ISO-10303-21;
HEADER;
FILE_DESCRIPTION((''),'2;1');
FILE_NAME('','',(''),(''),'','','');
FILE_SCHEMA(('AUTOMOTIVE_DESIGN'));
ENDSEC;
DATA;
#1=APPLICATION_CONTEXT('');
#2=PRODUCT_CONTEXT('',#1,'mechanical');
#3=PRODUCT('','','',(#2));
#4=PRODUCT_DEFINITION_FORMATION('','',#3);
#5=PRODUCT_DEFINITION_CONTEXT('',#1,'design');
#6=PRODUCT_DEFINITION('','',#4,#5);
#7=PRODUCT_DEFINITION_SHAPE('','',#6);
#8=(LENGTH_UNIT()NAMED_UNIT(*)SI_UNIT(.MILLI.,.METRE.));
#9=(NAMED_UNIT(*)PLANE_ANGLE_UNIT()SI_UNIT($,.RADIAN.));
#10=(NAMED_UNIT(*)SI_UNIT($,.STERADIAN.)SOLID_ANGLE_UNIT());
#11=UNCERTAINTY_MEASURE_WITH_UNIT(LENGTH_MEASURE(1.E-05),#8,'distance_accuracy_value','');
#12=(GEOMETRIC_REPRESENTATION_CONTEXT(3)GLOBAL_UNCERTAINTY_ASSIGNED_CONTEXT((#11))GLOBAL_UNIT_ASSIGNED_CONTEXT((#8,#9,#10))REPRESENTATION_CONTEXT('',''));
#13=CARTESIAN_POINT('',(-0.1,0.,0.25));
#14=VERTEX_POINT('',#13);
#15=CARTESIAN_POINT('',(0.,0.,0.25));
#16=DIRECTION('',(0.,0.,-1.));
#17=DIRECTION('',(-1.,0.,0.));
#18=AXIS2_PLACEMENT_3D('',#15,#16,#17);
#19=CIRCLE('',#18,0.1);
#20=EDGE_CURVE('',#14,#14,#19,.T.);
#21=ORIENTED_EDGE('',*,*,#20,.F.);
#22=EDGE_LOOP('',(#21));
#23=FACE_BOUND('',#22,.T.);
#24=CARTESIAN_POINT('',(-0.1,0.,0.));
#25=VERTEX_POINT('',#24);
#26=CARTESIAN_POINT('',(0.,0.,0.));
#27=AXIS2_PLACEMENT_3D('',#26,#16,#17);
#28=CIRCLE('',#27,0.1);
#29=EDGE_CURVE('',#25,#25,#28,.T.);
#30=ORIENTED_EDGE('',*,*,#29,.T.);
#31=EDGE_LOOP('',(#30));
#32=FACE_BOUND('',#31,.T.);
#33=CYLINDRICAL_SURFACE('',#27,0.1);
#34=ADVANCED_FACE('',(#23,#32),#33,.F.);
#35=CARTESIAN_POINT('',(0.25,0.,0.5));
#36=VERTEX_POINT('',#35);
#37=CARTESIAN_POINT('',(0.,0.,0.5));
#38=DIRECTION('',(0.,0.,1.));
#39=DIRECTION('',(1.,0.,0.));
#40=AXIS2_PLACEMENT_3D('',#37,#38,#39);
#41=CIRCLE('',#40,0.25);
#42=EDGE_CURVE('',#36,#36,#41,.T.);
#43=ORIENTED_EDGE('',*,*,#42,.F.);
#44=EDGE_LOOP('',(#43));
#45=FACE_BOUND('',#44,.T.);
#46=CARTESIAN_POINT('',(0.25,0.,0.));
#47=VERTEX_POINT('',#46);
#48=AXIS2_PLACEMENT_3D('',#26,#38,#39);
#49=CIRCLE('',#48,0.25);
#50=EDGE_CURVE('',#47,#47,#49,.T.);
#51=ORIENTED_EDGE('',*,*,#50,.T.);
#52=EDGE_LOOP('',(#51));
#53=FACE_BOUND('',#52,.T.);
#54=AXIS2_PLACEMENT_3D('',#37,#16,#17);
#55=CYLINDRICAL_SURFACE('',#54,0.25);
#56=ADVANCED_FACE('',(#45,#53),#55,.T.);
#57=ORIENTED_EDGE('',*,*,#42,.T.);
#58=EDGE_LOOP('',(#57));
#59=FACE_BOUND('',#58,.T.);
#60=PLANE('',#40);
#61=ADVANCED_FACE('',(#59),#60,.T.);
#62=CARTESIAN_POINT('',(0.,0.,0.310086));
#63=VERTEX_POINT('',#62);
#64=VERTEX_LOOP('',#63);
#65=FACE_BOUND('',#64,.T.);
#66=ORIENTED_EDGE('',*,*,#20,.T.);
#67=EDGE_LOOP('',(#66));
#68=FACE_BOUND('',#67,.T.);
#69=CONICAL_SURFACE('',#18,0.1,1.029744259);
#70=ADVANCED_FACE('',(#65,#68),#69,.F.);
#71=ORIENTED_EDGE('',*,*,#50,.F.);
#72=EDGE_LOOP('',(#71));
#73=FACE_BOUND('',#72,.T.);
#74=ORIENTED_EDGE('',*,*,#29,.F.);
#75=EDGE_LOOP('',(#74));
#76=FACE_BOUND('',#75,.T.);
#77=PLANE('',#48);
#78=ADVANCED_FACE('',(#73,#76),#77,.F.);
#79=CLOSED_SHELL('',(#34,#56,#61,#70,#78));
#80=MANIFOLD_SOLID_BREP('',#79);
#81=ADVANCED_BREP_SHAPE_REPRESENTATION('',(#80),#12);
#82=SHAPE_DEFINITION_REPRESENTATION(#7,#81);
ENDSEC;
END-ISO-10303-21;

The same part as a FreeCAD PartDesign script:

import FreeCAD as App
import Part
import Sketcher
from FreeCAD import Vector

doc = App.newDocument("Part")
body = doc.addObject("PartDesign::Body", "Body")

# Sketch on XY plane
sketch1 = body.newObject("Sketcher::SketchObject", "Sketch")
sketch1.AttachmentSupport = (doc.getObject("XY_Plane"), [""])
sketch1.MapMode = "FlatFace"
sketch1.addGeometry(Part.Circle(Vector(0, 0, 0), Vector(0, 0, 1), 0.25), False)
sketch1.addConstraint(Sketcher.Constraint("Coincident", 0, 3, -1, 1))
sketch1.addConstraint(Sketcher.Constraint("Diameter", 0, 0.5))
pad1 = body.newObject("PartDesign::Pad", "Pad")
pad1.Profile = sketch1
pad1.Length = 0.5

# Sketch on XY plane
sketch2 = body.newObject("Sketcher::SketchObject", "Sketch001")
sketch2.AttachmentSupport = (doc.getObject("XY_Plane"), [""])
sketch2.MapMode = "FlatFace"
sketch2.addGeometry(Part.Circle(Vector(0, 0, 0), Vector(0, 0, 1), 0.1), False)
sketch2.addConstraint(Sketcher.Constraint("Coincident", 0, 3, -1, 1))
sketch2.addConstraint(Sketcher.Constraint("Diameter", 0, 0.2))
doc.recompute()
hole = body.newObject("PartDesign::Hole", "Hole")
hole.Profile = sketch2
hole.ThreadType = "None"
hole.Diameter = 0.2
hole.DepthType = "Dimension"
hole.Depth = 0.25
hole.DrillPoint = "Angled"
hole.DrillPointAngle = 118
hole.Reversed = True

doc.recompute()
